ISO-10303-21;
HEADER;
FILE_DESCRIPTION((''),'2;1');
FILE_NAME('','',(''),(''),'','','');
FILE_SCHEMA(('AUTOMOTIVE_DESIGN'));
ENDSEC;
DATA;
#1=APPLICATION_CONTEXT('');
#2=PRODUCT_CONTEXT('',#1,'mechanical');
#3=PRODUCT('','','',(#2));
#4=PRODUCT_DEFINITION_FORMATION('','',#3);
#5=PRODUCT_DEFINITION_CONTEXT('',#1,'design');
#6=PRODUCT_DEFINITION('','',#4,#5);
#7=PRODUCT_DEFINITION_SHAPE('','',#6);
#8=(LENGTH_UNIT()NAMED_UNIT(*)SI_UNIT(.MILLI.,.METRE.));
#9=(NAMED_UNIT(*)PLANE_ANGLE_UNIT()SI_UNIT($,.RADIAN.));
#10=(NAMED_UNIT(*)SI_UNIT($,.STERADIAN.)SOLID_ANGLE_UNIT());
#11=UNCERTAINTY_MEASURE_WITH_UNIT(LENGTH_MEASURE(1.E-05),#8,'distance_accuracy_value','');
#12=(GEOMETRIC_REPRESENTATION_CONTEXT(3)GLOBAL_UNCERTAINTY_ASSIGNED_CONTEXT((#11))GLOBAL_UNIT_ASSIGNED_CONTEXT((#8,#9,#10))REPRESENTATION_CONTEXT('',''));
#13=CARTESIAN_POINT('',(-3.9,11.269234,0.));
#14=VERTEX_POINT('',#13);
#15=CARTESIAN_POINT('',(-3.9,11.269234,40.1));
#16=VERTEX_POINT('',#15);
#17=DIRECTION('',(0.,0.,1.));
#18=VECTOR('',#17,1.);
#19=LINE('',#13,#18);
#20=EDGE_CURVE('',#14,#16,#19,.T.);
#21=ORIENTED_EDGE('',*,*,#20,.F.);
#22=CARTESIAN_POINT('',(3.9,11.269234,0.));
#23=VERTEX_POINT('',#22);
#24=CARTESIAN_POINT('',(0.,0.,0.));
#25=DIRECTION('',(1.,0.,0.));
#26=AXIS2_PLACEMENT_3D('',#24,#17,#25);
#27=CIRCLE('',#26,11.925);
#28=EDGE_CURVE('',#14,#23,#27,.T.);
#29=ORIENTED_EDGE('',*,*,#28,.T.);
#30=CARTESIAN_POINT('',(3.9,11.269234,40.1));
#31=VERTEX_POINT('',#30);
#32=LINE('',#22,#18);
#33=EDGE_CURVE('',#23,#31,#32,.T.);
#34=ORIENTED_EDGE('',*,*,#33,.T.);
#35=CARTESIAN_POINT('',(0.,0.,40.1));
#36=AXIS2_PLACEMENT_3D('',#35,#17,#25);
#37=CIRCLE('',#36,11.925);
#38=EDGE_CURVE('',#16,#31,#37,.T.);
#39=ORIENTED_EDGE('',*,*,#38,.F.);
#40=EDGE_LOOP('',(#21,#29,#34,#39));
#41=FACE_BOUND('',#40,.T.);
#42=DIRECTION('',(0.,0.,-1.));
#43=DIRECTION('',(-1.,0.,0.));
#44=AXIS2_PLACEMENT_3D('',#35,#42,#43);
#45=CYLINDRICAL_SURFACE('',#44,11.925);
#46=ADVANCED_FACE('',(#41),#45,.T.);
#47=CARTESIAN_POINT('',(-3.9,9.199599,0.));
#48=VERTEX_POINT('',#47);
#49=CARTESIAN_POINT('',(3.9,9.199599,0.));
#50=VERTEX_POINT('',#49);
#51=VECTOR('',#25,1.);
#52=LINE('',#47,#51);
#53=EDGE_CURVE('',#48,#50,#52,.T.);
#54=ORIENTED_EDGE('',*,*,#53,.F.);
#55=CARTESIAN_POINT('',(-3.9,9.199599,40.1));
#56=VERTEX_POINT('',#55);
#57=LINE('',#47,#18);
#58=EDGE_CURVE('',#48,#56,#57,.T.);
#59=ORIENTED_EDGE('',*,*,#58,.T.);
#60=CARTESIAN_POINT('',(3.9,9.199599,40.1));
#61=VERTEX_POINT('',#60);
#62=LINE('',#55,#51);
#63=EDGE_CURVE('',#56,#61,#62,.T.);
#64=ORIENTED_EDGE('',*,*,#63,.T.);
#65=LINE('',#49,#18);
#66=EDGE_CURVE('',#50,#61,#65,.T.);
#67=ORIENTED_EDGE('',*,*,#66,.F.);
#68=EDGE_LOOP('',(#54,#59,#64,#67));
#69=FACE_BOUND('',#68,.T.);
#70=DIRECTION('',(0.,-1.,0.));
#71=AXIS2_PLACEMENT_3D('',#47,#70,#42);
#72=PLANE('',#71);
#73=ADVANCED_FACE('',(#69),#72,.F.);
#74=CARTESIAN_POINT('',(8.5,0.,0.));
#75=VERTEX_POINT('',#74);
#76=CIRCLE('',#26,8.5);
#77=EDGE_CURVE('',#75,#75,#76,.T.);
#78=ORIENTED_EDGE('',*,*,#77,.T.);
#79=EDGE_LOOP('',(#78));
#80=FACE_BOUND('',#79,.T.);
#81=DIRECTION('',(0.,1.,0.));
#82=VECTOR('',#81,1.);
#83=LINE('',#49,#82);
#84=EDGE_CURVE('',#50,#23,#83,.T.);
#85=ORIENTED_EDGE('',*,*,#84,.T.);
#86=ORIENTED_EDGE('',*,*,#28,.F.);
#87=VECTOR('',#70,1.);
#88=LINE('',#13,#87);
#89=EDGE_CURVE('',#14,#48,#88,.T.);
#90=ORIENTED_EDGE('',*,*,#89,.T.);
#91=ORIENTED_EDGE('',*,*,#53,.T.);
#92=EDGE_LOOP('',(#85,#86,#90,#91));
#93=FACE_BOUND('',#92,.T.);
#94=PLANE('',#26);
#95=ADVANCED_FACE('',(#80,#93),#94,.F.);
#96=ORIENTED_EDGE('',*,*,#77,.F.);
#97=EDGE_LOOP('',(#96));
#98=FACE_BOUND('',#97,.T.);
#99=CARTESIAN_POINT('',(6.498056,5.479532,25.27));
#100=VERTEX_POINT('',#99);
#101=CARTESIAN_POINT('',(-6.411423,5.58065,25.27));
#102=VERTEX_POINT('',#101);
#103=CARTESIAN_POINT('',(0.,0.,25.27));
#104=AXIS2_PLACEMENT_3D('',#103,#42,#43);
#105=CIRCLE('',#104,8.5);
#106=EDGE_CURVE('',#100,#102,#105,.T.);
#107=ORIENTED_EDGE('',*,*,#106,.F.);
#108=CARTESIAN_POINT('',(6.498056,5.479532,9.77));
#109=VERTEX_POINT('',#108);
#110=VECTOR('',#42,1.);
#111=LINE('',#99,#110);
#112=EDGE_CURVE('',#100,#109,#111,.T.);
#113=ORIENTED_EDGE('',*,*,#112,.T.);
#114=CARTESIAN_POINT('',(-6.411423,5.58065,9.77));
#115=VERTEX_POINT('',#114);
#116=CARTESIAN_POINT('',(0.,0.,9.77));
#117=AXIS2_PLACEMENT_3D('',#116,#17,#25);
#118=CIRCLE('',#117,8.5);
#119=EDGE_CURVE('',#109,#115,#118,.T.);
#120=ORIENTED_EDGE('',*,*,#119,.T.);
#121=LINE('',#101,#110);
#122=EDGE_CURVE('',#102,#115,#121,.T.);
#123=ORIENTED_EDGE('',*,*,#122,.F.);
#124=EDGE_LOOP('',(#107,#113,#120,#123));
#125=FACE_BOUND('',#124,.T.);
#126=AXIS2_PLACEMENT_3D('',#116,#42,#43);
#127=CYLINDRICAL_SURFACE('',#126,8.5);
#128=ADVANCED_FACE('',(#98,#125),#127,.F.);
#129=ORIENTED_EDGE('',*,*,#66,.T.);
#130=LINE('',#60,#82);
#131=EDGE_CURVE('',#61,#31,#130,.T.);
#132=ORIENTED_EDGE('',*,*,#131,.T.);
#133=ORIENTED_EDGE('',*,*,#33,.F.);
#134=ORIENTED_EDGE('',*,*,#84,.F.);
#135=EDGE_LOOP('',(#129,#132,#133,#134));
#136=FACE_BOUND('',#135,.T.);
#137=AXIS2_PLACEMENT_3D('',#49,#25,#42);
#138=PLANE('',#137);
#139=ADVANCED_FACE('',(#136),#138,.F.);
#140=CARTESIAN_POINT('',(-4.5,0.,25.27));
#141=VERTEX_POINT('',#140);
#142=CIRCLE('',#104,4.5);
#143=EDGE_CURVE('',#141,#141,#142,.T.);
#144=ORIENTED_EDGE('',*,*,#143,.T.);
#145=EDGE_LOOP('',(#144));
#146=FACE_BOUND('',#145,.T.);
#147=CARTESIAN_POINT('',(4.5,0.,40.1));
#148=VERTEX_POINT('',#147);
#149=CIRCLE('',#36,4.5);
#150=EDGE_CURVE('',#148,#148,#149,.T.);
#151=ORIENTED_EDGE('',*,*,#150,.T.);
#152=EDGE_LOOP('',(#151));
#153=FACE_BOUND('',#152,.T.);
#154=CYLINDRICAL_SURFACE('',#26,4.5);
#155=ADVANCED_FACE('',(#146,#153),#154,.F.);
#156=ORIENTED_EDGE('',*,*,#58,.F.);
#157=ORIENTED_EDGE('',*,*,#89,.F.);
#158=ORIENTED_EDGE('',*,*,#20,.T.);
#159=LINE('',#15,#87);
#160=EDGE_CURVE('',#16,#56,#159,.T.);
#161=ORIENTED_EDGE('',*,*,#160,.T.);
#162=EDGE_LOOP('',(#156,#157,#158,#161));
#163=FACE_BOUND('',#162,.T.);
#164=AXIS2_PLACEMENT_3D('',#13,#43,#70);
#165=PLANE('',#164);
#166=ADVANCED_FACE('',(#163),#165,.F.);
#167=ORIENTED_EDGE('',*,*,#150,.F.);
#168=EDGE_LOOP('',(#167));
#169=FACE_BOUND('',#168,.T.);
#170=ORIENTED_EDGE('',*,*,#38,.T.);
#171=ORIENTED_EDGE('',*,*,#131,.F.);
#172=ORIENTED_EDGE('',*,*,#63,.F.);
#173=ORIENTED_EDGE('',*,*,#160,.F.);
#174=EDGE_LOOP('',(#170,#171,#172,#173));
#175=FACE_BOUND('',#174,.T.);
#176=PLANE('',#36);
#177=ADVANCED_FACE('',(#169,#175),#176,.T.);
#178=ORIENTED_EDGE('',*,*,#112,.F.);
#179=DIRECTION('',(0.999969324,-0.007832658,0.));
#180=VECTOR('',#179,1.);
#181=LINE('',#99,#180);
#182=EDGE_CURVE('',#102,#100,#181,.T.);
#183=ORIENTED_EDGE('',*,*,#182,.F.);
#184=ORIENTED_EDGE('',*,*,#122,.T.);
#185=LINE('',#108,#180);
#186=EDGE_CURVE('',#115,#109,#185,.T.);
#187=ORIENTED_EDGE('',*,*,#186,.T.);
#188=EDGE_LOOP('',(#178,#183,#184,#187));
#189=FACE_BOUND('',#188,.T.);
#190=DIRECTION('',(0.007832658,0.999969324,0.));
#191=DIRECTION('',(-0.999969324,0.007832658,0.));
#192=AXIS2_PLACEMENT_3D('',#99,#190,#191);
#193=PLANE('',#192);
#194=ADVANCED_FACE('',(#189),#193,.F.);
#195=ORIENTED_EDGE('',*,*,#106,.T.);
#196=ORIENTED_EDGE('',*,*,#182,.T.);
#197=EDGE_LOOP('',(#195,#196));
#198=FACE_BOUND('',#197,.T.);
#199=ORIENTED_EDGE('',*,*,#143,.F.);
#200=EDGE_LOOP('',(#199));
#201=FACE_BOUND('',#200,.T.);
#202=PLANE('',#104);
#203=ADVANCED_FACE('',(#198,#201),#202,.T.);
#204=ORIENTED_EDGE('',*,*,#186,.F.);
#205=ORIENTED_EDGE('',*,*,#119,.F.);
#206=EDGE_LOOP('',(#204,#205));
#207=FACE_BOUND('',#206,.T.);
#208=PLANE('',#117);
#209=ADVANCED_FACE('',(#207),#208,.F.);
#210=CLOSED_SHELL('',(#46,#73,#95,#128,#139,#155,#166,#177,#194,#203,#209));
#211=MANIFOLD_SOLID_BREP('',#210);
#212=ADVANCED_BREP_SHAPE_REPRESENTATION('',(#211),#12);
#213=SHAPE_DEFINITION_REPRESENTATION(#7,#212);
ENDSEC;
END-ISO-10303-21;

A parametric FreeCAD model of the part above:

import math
import FreeCAD as App
import Part
import Sketcher
from FreeCAD import Vector

doc = App.newDocument("Part")
body = doc.addObject("PartDesign::Body", "Body")

sketch1 = body.newObject("Sketcher::SketchObject", "Sketch")
sketch1.AttachmentSupport = (doc.getObject("XY_Plane"), [""])
sketch1.MapMode = "FlatFace"
sketch1.addGeometry(Part.Circle(Vector(0, 0, 0), Vector(0, 0, 1), 12), False)
sketch1.addConstraint([
    Sketcher.Constraint("Coincident", 0, 3, -1, 1),
    Sketcher.Constraint("Diameter", 0, 23.85),
])
pad1 = body.newObject("PartDesign::Pad", "Pad")
pad1.Profile = sketch1
pad1.Length = 40.1

sketch2 = body.newObject("Sketcher::SketchObject", "Sketch001")
sketch2.AttachmentSupport = (doc.getObject("XY_Plane"), [""])
sketch2.MapMode = "FlatFace"
sketch2.addGeometry(Part.Circle(Vector(0, 0, 0), Vector(0, 0, 1), 8), False)
sketch2.addConstraint([
    Sketcher.Constraint("Coincident", 0, 3, -1, 1),
    Sketcher.Constraint("Diameter", 0, 17.0),
])
pocket1 = body.newObject("PartDesign::Pocket", "Pocket")
pocket1.Profile = sketch2
pocket1.Length = 9.77
pocket1.Reversed = True

sketch3 = body.newObject("Sketcher::SketchObject", "Sketch002")
sketch3.AttachmentSupport = (doc.getObject("XY_Plane"), [""])
sketch3.MapMode = "FlatFace"
sketch3.AttachmentOffset = App.Placement(Vector(0, 0, 9.77), App.Rotation())
sketch3.addGeometry([
    Part.LineSegment(Vector(-6, 6, 0), Vector(6, 5, 0)),
    Part.ArcOfCircle(Part.Circle(Vector(0, 0, 0), Vector(0, 0, 1), 8), math.radians(139), math.radians(400)),
], False)
sketch3.addConstraint([
    Sketcher.Constraint("Coincident", 0, 1, 1, 1),
    Sketcher.Constraint("Coincident", 1, 2, 0, 2),
    Sketcher.Constraint("Coincident", 1, 3, -1, 1),
    Sketcher.Constraint("Radius", 1, 8.5),
    Sketcher.Constraint("DistanceY", -1, 1, 0, 1, 5.58065),
    Sketcher.Constraint("DistanceY", -1, 1, 1, 2, 5.479532),
])
pocket2 = body.newObject("PartDesign::Pocket", "Pocket001")
pocket2.Profile = sketch3
pocket2.Length = 15.5
pocket2.Reversed = True

sketch4 = body.newObject("Sketcher::SketchObject", "Sketch003")
sketch4.AttachmentSupport = (doc.getObject("XY_Plane"), [""])
sketch4.MapMode = "FlatFace"
sketch4.AttachmentOffset = App.Placement(Vector(0, 0, 40.1), App.Rotation())
sketch4.addGeometry(Part.Circle(Vector(0, 0, 0), Vector(0, 0, 1), 4.5), False)
sketch4.addConstraint([
    Sketcher.Constraint("Coincident", 0, 3, -1, 1),
    Sketcher.Constraint("Diameter", 0, 9.0),
])
pocket3 = body.newObject("PartDesign::Pocket", "Pocket002")
pocket3.Profile = sketch4
pocket3.Type = "ThroughAll"

sketch5 = body.newObject("Sketcher::SketchObject", "Sketch004")
sketch5.AttachmentSupport = (doc.getObject("XY_Plane"), [""])
sketch5.MapMode = "FlatFace"
sketch5.AttachmentOffset = App.Placement(Vector(0, 0, 40.1), App.Rotation())
sketch5.addGeometry([
    Part.LineSegment(Vector(-3.9, 11.3, 0), Vector(-3.9, 9.2, 0)),
    Part.LineSegment(Vector(-3.9, 9.2, 0), Vector(3.9, 9.2, 0)),
    Part.LineSegment(Vector(3.9, 9.2, 0), Vector(3.9, 11.3, 0)),
    Part.ArcOfCircle(Part.Circle(Vector(0, 0, 0), Vector(0, 0, 1), 11.9), math.radians(71), math.radians(109)),
], False)
sketch5.addConstraint([
    Sketcher.Constraint("Coincident", 0, 2, 1, 1),
    Sketcher.Constraint("Coincident", 1, 2, 2, 1),
    Sketcher.Constraint("Coincident", 2, 2, 3, 1),
    Sketcher.Constraint("Coincident", 3, 2, 0, 1),
    Sketcher.Constraint("Vertical", 0),
    Sketcher.Constraint("Horizontal", 1),
    Sketcher.Constraint("Vertical", 2),
    Sketcher.Constraint("Coincident", 3, 3, -1, 1),
    Sketcher.Constraint("Horizontal", 2, 2, 3, 2),
    Sketcher.Constraint("DistanceX", 1, 1, 1, 2, 7.8),
    Sketcher.Constraint("Radius", 3, 11.925),
    Sketcher.Constraint("DistanceY", -1, 1, 0, 2, 9.199599),
])
pocket4 = body.newObject("PartDesign::Pocket", "Pocket003")
pocket4.Profile = sketch5
pocket4.Type = "ThroughAll"

doc.recompute()
